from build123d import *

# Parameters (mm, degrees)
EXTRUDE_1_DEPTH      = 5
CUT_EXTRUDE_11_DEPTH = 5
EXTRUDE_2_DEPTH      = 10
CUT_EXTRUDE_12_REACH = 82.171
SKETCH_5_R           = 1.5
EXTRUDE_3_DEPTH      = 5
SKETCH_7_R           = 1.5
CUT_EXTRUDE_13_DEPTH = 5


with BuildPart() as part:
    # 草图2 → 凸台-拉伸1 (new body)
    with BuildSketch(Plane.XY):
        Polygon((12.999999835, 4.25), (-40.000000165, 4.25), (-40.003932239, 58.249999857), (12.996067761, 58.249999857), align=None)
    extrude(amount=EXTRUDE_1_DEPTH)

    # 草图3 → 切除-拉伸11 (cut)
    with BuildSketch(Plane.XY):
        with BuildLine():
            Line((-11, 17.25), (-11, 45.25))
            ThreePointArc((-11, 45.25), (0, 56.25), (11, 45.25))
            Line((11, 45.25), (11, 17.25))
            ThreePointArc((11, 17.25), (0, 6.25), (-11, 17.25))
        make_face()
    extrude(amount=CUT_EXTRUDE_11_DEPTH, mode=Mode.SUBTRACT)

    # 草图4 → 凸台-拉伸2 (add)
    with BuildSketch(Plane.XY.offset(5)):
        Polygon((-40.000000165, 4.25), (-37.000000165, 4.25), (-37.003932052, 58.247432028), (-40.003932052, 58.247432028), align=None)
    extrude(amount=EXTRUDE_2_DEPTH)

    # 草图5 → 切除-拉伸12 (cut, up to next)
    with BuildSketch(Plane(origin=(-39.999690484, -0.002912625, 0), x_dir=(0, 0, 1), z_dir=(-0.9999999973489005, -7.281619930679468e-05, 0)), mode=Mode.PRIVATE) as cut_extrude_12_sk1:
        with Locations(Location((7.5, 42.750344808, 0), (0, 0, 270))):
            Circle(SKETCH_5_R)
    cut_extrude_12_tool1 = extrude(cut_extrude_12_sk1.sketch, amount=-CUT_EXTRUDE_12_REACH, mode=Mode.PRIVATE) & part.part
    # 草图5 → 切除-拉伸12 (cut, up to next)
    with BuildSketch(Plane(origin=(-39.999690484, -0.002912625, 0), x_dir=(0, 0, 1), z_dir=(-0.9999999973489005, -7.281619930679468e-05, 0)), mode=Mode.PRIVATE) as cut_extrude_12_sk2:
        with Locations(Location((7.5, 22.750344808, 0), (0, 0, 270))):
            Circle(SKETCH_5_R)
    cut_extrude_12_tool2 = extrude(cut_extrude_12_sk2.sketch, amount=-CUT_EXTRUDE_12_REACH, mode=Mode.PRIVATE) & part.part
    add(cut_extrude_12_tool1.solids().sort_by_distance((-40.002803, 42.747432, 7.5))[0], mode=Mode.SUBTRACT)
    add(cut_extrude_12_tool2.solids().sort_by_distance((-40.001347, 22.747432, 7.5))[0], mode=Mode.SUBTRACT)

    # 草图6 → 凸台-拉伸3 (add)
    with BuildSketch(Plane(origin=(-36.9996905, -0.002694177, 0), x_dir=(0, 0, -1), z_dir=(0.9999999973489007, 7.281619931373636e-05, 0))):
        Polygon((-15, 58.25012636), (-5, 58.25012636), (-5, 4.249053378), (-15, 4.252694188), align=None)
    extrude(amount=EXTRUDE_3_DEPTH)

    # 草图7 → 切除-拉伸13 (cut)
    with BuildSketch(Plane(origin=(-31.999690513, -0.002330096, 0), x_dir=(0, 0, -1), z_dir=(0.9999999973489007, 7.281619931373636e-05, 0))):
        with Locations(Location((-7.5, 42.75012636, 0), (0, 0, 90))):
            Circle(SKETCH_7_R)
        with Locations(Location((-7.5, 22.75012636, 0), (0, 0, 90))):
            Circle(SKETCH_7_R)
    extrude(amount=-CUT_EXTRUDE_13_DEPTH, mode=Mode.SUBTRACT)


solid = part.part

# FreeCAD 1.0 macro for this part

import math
import FreeCAD as App
import Part
import Sketcher

V = App.Vector

doc = App.newDocument("Part")
params = doc.addObject("Spreadsheet::Sheet", "Params")
for row, (alias, value) in enumerate([
    ("sketch1_width", "53 mm"),
    ("sketch1_length", "54 mm"),
    ("pad1_length", "5 mm"),
    ("sketch2_radius", "11 mm"),
    ("sketch2_height", "28 mm"),
    ("pocket1_length", "5 mm"),
    ("sketch3_width", "3 mm"),
    ("pad2_length", "10 mm"),
    ("sketch4_diameter", "3 mm"),
    ("sketch5_diameter", "3 mm"),
    ("sketch6_width", "10 mm"),
    ("pad3_length", "5 mm"),
    ("sketch7_diameter", "3 mm"),
    ("pocket4_length", "5 mm"),
], start=1):
    params.set(f"A{row}", alias)
    params.set(f"B{row}", "=" + value)
    params.setAlias(f"B{row}", alias)

body = doc.addObject("PartDesign::Body", "Body")

sketch1 = body.newObject("Sketcher::SketchObject", "Sketch")
sketch1.AttachmentSupport = (doc.getObject("XY_Plane"), [""])
sketch1.MapMode = "FlatFace"
sketch1.addGeometry([
    Part.LineSegment(V(-40, 4.25, 0), V(13, 4.25, 0)),
    Part.LineSegment(V(13, 4.25, 0), V(12.996068, 58.25, 0)),
    Part.LineSegment(V(12.996068, 58.25, 0), V(-40.003932, 58.25, 0)),
    Part.LineSegment(V(-40.003932, 58.25, 0), V(-40, 4.25, 0)),
], False)
sketch1.addConstraint([
    Sketcher.Constraint("Coincident", 0, 2, 1, 1),
    Sketcher.Constraint("Coincident", 1, 2, 2, 1),
    Sketcher.Constraint("Coincident", 2, 2, 3, 1),
    Sketcher.Constraint("Coincident", 3, 2, 0, 1),
    Sketcher.Constraint("Horizontal", 0),
    Sketcher.Constraint("Horizontal", 2),
    Sketcher.Constraint("Parallel", 1, 3),
    Sketcher.Constraint("DistanceX", 0, 1, 0, 2, 53.0),
    Sketcher.Constraint("Distance", 1, 54.0),
    Sketcher.Constraint("DistanceX", -1, 1, 0, 2, 13.0),
    Sketcher.Constraint("DistanceY", -1, 1, 0, 2, 4.25),
    Sketcher.Constraint("DistanceX", -1, 1, 1, 2, 12.996068),
])
sketch1.setExpression("Constraints[7]", "Params.sketch1_width")
sketch1.setExpression("Constraints[8]", "Params.sketch1_length")
pad1 = body.newObject("PartDesign::Pad", "Pad")
pad1.Profile = sketch1
pad1.setExpression("Length", "Params.pad1_length")

sketch2 = body.newObject("Sketcher::SketchObject", "Sketch001")
sketch2.AttachmentSupport = (doc.getObject("XY_Plane"), [""])
sketch2.MapMode = "FlatFace"
sketch2.addGeometry([
    Part.LineSegment(V(-11, 45.25, 0), V(-11, 17.25, 0)),
    Part.ArcOfCircle(Part.Circle(V(0, 17.25, 0), V(0, 0, 1), 11), math.radians(180), math.radians(360)),
    Part.LineSegment(V(11, 17.25, 0), V(11, 45.25, 0)),
    Part.ArcOfCircle(Part.Circle(V(0, 45.25, 0), V(0, 0, 1), 11), math.radians(0), math.radians(180)),
], False)
sketch2.addConstraint([
    Sketcher.Constraint("Tangent", 0, 2, 1, 1),
    Sketcher.Constraint("Tangent", 1, 2, 2, 1),
    Sketcher.Constraint("Tangent", 2, 2, 3, 1),
    Sketcher.Constraint("Tangent", 3, 2, 0, 1),
    Sketcher.Constraint("Vertical", 0),
    Sketcher.Constraint("Vertical", 2),
    Sketcher.Constraint("PointOnObject", 1, 3, -2),
    Sketcher.Constraint("Radius", 1, 11.0),
    Sketcher.Constraint("DistanceY", 0, 2, 0, 1, 28.0),
    Sketcher.Constraint("DistanceY", -1, 1, 1, 3, 17.25),
])
sketch2.setExpression("Constraints[7]", "Params.sketch2_radius")
sketch2.setExpression("Constraints[8]", "Params.sketch2_height")
pocket1 = body.newObject("PartDesign::Pocket", "Pocket")
pocket1.Profile = sketch2
pocket1.setExpression("Length", "Params.pocket1_length")
pocket1.Reversed = True

sketch3 = body.newObject("Sketcher::SketchObject", "Sketch002")
sketch3.AttachmentSupport = (doc.getObject("XY_Plane"), [""])
sketch3.MapMode = "FlatFace"
sketch3.AttachmentOffset = App.Placement(V(0, 0, 5), App.Rotation())
sketch3.addGeometry([
    Part.LineSegment(V(-40, 4.25, 0), V(-37, 4.25, 0)),
    Part.LineSegment(V(-37, 4.25, 0), V(-37.003932, 58.247432, 0)),
    Part.LineSegment(V(-37.003932, 58.247432, 0), V(-40.003932, 58.247432, 0)),
    Part.LineSegment(V(-40.003932, 58.247432, 0), V(-40, 4.25, 0)),
], False)
sketch3.addConstraint([
    Sketcher.Constraint("Coincident", 0, 2, 1, 1),
    Sketcher.Constraint("Coincident", 1, 2, 2, 1),
    Sketcher.Constraint("Coincident", 2, 2, 3, 1),
    Sketcher.Constraint("Coincident", 3, 2, 0, 1),
    Sketcher.Constraint("Horizontal", 0),
    Sketcher.Constraint("Horizontal", 2),
    Sketcher.Constraint("Parallel", 1, 3),
    Sketcher.Constraint("DistanceX", 0, 1, 0, 2, 3.0),
    Sketcher.Constraint("DistanceX", 0, 2, -1, 1, 37.0),
    Sketcher.Constraint("DistanceY", -1, 1, 0, 2, 4.25),
    Sketcher.Constraint("DistanceX", 1, 2, 0, 2, 0.003932),
    Sketcher.Constraint("Distance", 1, 53.997432),
])
sketch3.setExpression("Constraints[7]", "Params.sketch3_width")
pad2 = body.newObject("PartDesign::Pad", "Pad001")
pad2.Profile = sketch3
pad2.setExpression("Length", "Params.pad2_length")

sketch4 = body.newObject("Sketcher::SketchObject", "Sketch003")
sketch4.Placement = App.Placement(V(-39.99969, -0.002913, 0), App.Rotation(V(0, 0, 1), V(-0.000072816, 0.999999997, 0), V(-0.999999997, -0.000072816, 0), "ZXY"))
sketch4.addGeometry(Part.Circle(V(7.5, 42.750345, 0), V(0, 0, 1), 1.5), False)
sketch4.addConstraint([
    Sketcher.Constraint("Diameter", 0, 3.0),
    Sketcher.Constraint("DistanceX", -1, 1, 0, 3, 7.5),
    Sketcher.Constraint("DistanceY", -1, 1, 0, 3, 42.750345),
])
sketch4.setExpression("Constraints[0]", "Params.sketch4_diameter")
pocket2 = body.newObject("PartDesign::Pocket", "Pocket001")
pocket2.Profile = sketch4
pocket2.Type = "UpToFirst"

sketch5 = body.newObject("Sketcher::SketchObject", "Sketch004")
sketch5.Placement = App.Placement(V(-39.99969, -0.002913, 0), App.Rotation(V(0, 0, 1), V(-0.000072816, 0.999999997, 0), V(-0.999999997, -0.000072816, 0), "ZXY"))
sketch5.addGeometry(Part.Circle(V(7.5, 22.750345, 0), V(0, 0, 1), 1.5), False)
sketch5.addConstraint([
    Sketcher.Constraint("Diameter", 0, 3.0),
    Sketcher.Constraint("DistanceX", -1, 1, 0, 3, 7.5),
    Sketcher.Constraint("DistanceY", -1, 1, 0, 3, 22.750345),
])
sketch5.setExpression("Constraints[0]", "Params.sketch5_diameter")
pocket3 = body.newObject("PartDesign::Pocket", "Pocket002")
pocket3.Profile = sketch5
pocket3.Type = "UpToFirst"

sketch6 = body.newObject("Sketcher::SketchObject", "Sketch005")
sketch6.Placement = App.Placement(V(-36.99969, -0.002694, 0), App.Rotation(V(0, 0, -1), V(-0.000072816, 0.999999997, 0), V(0.999999997, 0.000072816, 0), "ZXY"))
sketch6.addGeometry([
    Part.LineSegment(V(-5, 58.250126, 0), V(-15, 58.250126, 0)),
    Part.LineSegment(V(-15, 58.250126, 0), V(-15, 4.252694, 0)),
    Part.LineSegment(V(-15, 4.252694, 0), V(-5, 4.249053, 0)),
    Part.LineSegment(V(-5, 4.249053, 0), V(-5, 58.250126, 0)),
], False)
sketch6.addConstraint([
    Sketcher.Constraint("Coincident", 0, 2, 1, 1),
    Sketcher.Constraint("Coincident", 1, 2, 2, 1),
    Sketcher.Constraint("Coincident", 2, 2, 3, 1),
    Sketcher.Constraint("Coincident", 3, 2, 0, 1),
    Sketcher.Constraint("Horizontal", 0),
    Sketcher.Constraint("Vertical", 1),
    Sketcher.Constraint("Vertical", 3),
    Sketcher.Constraint("DistanceX", 0, 2, 0, 1, 10.0),
    Sketcher.Constraint("DistanceX", 0, 2, -1, 1, 15.0),
    Sketcher.Constraint("DistanceY", 1, 2, 1, 1, 53.997432),
    Sketcher.Constraint("DistanceY", 3, 1, 3, 2, 54.001073),
    Sketcher.Constraint("DistanceY", -1, 1, 0, 2, 58.250126),
])
sketch6.setExpression("Constraints[7]", "Params.sketch6_width")
pad3 = body.newObject("PartDesign::Pad", "Pad002")
pad3.Profile = sketch6
pad3.setExpression("Length", "Params.pad3_length")

sketch7 = body.newObject("Sketcher::SketchObject", "Sketch006")
sketch7.Placement = App.Placement(V(-31.999691, -0.00233, 0), App.Rotation(V(0, 0, -1), V(-0.000072816, 0.999999997, 0), V(0.999999997, 0.000072816, 0), "ZXY"))
sketch7.addGeometry([
    Part.Circle(V(-7.5, 42.750126, 0), V(0, 0, 1), 1.5),
    Part.Circle(V(-7.5, 22.750126, 0), V(0, 0, 1), 1.5),
], False)
sketch7.addConstraint([
    Sketcher.Constraint("Equal", 0, 1),
    Sketcher.Constraint("Vertical", 0, 3, 1, 3),
    Sketcher.Constraint("Diameter", 0, 3.0),
    Sketcher.Constraint("DistanceY", 1, 3, 0, 3, 20.0),
    Sketcher.Constraint("DistanceX", 0, 3, -1, 1, 7.5),
    Sketcher.Constraint("DistanceY", -1, 1, 0, 3, 42.750126),
])
sketch7.setExpression("Constraints[2]", "Params.sketch7_diameter")
pocket4 = body.newObject("PartDesign::Pocket", "Pocket003")
pocket4.Profile = sketch7
pocket4.setExpression("Length", "Params.pocket4_length")

doc.recompute()
